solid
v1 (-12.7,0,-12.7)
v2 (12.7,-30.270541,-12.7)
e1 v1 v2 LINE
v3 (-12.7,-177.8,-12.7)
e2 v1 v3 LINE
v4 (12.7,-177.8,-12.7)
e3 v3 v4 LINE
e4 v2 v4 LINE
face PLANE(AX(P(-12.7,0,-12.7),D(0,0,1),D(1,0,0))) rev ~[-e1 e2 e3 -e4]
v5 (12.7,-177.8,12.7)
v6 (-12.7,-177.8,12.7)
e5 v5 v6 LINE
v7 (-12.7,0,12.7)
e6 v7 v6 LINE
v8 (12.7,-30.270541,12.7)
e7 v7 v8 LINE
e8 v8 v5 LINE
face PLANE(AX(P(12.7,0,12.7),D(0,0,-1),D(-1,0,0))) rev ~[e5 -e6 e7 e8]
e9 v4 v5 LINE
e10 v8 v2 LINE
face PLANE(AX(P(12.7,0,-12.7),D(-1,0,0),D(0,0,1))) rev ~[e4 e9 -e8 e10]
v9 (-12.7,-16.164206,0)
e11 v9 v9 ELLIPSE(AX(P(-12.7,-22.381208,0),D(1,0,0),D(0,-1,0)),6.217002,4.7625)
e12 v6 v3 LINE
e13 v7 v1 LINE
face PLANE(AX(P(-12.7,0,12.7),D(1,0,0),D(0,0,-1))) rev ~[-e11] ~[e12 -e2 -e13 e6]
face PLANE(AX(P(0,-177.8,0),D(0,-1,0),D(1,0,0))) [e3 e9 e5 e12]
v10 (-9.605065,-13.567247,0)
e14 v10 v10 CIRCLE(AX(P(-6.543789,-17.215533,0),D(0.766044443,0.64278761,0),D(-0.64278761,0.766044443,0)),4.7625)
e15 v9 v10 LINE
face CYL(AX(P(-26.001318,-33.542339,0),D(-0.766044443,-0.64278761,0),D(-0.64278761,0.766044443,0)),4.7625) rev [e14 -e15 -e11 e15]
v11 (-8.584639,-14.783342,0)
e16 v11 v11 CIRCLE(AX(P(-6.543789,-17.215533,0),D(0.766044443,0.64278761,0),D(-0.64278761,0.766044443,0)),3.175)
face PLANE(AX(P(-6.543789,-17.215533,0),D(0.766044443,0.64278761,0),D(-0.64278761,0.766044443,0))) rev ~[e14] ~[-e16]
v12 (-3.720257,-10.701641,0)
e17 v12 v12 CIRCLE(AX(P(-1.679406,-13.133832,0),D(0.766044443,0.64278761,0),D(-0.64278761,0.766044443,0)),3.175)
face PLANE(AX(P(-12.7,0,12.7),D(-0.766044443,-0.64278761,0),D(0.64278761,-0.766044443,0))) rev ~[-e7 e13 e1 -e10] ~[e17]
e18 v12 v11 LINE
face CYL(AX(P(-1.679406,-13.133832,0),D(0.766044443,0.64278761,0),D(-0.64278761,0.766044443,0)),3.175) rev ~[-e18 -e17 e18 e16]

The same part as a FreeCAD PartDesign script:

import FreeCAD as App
import Part
import Sketcher

V = App.Vector
Q = App.Units.Quantity


def add_polygon(sketch, points):
    """Adds a closed chain of lines whose ends are joined by coincident constraints."""
    first, n = sketch.GeometryCount, len(points)
    for a, b in zip(points, points[1:] + points[:1]):
        sketch.addGeometry(Part.LineSegment(App.Vector(*a, 0), App.Vector(*b, 0)), False)
    for i in range(n):
        sketch.addConstraint(Sketcher.Constraint("Coincident", first + i, 2, first + (i + 1) % n, 1))

doc = App.newDocument("Part")
params = doc.addObject("Spreadsheet::Sheet", "Params")
for row, (alias, value) in enumerate([
    ("sketch1_width", "1 in"),
    ("pad1_length", "7 in"),
    ("sketch2_width", "1 in"),
    ("sketch3_diameter", "0.25 in"),
    ("sketch4_diameter", "0.375 in"),
    ("pocket3_length", "1 in"),
], start=1):
    params.set(f"A{row}", alias)
    params.set(f"B{row}", "=" + value)
    params.setAlias(f"B{row}", alias)

body = doc.addObject("PartDesign::Body", "Body")

# Sketch on XZ plane
sketch1 = doc.addObject("Sketcher::SketchObject", "Sketch")
body.addObject(sketch1)
sketch1.AttachmentSupport = (doc.XZ_Plane, [""])
sketch1.MapMode = "FlatFace"
add_polygon(sketch1, [(12.7, -12.7), (12.7, 12.7), (-12.7, 12.7), (-12.7, -12.7)])  # lines 0-3
sketch1.addConstraint(Sketcher.Constraint("Vertical", 0))
sketch1.addConstraint(Sketcher.Constraint("Horizontal", 1))
sketch1.addConstraint(Sketcher.Constraint("Vertical", 2))
sketch1.addConstraint(Sketcher.Constraint("Horizontal", 3))
sketch1.addConstraint(Sketcher.Constraint("Symmetric", 0, 2, 2, 2, -1, 1))
sketch1.addConstraint(Sketcher.Constraint("Equal", 3, 0))
sketch1.addConstraint(Sketcher.Constraint("DistanceX", 1, 2, 1, 1, Q("1 in")))
sketch1.setExpression("Constraints[10]", "Params.sketch1_width")
pad1 = doc.addObject("PartDesign::Pad", "Pad")
body.addObject(pad1)
pad1.Profile = sketch1
pad1.setExpression("Length", "Params.pad1_length")

# Sketch on XY plane
sketch2 = doc.addObject("Sketcher::SketchObject", "Sketch001")
body.addObject(sketch2)
sketch2.AttachmentSupport = (doc.XY_Plane, [""])
sketch2.MapMode = "FlatFace"
sketch2.AttachmentOffset = App.Placement(V(0, 0, 0.5 * 25.4), App.Rotation())
add_polygon(sketch2, [(12.7, 0), (-12.7, 0), (12.7, -30.270541)])  # lines 0-2
sketch2.addConstraint(Sketcher.Constraint("Horizontal", 0))
sketch2.addConstraint(Sketcher.Constraint("Vertical", 2))
sketch2.addConstraint(Sketcher.Constraint("Symmetric", 0, 2, 2, 2, -1, 1))
sketch2.addConstraint(Sketcher.Constraint("DistanceX", 0, 2, 0, 1, Q("1 in")))
sketch2.addConstraint(Sketcher.Constraint("Angle", 1, Q("-50 deg")))
sketch2.setExpression("Constraints[6]", "Params.sketch2_width")
pocket1 = doc.addObject("PartDesign::Pocket", "Pocket")
body.addObject(pocket1)
pocket1.Profile = sketch2
pocket1.Type = "ThroughAll"

# Sketch on an angled plane
sketch3 = doc.addObject("Sketcher::SketchObject", "Sketch002")
body.addObject(sketch3)
sketch3.Placement = App.Placement(V(-7.452666, -6.253529, 0), App.Rotation(V(-0.64278761, 0.766044443, 0), V(0, 0, 1), V(0.766044443, 0.64278761, 0), "ZXY"))
sketch3.addGeometry(Part.Circle(V(-8.981597, 0, 0), V(0, 0, 1), 3.175), False)
sketch3.addConstraint(Sketcher.Constraint("PointOnObject", 0, 3, -1))
sketch3.addConstraint(Sketcher.Constraint("Diameter", 0, Q("0.25 in")))
sketch3.addConstraint(Sketcher.Constraint("DistanceX", 0, 3, -1, 1, Q("8.981597 mm")))
sketch3.setExpression("Constraints[1]", "Params.sketch3_diameter")
pocket2 = doc.addObject("PartDesign::Pocket", "Pocket001")
body.addObject(pocket2)
pocket2.Profile = sketch3
pocket2.Type = "ThroughAll"

# Sketch on an angled plane
sketch4 = doc.addObject("Sketcher::SketchObject", "Sketch003")
body.addObject(sketch4)
sketch4.Placement = App.Placement(V(-31.774577, -26.662036, 0), App.Rotation(V(-0.64278761, 0.766044443, 0), V(0, 0, 1), V(0.766044443, 0.64278761, 0), "ZXY"))
sketch4.addGeometry(Part.Circle(V(-8.981597, 0, 0), V(0, 0, 1), 4.7625), False)
sketch4.addConstraint(Sketcher.Constraint("PointOnObject", 0, 3, -1))
sketch4.addConstraint(Sketcher.Constraint("Diameter", 0, Q("0.375 in")))
sketch4.addConstraint(Sketcher.Constraint("DistanceX", 0, 3, -1, 1, Q("8.981597 mm")))
sketch4.setExpression("Constraints[1]", "Params.sketch4_diameter")
pocket3 = doc.addObject("PartDesign::Pocket", "Pocket002")
body.addObject(pocket3)
pocket3.Profile = sketch4
pocket3.setExpression("Length", "Params.pocket3_length")
pocket3.Reversed = True

doc.recompute()
